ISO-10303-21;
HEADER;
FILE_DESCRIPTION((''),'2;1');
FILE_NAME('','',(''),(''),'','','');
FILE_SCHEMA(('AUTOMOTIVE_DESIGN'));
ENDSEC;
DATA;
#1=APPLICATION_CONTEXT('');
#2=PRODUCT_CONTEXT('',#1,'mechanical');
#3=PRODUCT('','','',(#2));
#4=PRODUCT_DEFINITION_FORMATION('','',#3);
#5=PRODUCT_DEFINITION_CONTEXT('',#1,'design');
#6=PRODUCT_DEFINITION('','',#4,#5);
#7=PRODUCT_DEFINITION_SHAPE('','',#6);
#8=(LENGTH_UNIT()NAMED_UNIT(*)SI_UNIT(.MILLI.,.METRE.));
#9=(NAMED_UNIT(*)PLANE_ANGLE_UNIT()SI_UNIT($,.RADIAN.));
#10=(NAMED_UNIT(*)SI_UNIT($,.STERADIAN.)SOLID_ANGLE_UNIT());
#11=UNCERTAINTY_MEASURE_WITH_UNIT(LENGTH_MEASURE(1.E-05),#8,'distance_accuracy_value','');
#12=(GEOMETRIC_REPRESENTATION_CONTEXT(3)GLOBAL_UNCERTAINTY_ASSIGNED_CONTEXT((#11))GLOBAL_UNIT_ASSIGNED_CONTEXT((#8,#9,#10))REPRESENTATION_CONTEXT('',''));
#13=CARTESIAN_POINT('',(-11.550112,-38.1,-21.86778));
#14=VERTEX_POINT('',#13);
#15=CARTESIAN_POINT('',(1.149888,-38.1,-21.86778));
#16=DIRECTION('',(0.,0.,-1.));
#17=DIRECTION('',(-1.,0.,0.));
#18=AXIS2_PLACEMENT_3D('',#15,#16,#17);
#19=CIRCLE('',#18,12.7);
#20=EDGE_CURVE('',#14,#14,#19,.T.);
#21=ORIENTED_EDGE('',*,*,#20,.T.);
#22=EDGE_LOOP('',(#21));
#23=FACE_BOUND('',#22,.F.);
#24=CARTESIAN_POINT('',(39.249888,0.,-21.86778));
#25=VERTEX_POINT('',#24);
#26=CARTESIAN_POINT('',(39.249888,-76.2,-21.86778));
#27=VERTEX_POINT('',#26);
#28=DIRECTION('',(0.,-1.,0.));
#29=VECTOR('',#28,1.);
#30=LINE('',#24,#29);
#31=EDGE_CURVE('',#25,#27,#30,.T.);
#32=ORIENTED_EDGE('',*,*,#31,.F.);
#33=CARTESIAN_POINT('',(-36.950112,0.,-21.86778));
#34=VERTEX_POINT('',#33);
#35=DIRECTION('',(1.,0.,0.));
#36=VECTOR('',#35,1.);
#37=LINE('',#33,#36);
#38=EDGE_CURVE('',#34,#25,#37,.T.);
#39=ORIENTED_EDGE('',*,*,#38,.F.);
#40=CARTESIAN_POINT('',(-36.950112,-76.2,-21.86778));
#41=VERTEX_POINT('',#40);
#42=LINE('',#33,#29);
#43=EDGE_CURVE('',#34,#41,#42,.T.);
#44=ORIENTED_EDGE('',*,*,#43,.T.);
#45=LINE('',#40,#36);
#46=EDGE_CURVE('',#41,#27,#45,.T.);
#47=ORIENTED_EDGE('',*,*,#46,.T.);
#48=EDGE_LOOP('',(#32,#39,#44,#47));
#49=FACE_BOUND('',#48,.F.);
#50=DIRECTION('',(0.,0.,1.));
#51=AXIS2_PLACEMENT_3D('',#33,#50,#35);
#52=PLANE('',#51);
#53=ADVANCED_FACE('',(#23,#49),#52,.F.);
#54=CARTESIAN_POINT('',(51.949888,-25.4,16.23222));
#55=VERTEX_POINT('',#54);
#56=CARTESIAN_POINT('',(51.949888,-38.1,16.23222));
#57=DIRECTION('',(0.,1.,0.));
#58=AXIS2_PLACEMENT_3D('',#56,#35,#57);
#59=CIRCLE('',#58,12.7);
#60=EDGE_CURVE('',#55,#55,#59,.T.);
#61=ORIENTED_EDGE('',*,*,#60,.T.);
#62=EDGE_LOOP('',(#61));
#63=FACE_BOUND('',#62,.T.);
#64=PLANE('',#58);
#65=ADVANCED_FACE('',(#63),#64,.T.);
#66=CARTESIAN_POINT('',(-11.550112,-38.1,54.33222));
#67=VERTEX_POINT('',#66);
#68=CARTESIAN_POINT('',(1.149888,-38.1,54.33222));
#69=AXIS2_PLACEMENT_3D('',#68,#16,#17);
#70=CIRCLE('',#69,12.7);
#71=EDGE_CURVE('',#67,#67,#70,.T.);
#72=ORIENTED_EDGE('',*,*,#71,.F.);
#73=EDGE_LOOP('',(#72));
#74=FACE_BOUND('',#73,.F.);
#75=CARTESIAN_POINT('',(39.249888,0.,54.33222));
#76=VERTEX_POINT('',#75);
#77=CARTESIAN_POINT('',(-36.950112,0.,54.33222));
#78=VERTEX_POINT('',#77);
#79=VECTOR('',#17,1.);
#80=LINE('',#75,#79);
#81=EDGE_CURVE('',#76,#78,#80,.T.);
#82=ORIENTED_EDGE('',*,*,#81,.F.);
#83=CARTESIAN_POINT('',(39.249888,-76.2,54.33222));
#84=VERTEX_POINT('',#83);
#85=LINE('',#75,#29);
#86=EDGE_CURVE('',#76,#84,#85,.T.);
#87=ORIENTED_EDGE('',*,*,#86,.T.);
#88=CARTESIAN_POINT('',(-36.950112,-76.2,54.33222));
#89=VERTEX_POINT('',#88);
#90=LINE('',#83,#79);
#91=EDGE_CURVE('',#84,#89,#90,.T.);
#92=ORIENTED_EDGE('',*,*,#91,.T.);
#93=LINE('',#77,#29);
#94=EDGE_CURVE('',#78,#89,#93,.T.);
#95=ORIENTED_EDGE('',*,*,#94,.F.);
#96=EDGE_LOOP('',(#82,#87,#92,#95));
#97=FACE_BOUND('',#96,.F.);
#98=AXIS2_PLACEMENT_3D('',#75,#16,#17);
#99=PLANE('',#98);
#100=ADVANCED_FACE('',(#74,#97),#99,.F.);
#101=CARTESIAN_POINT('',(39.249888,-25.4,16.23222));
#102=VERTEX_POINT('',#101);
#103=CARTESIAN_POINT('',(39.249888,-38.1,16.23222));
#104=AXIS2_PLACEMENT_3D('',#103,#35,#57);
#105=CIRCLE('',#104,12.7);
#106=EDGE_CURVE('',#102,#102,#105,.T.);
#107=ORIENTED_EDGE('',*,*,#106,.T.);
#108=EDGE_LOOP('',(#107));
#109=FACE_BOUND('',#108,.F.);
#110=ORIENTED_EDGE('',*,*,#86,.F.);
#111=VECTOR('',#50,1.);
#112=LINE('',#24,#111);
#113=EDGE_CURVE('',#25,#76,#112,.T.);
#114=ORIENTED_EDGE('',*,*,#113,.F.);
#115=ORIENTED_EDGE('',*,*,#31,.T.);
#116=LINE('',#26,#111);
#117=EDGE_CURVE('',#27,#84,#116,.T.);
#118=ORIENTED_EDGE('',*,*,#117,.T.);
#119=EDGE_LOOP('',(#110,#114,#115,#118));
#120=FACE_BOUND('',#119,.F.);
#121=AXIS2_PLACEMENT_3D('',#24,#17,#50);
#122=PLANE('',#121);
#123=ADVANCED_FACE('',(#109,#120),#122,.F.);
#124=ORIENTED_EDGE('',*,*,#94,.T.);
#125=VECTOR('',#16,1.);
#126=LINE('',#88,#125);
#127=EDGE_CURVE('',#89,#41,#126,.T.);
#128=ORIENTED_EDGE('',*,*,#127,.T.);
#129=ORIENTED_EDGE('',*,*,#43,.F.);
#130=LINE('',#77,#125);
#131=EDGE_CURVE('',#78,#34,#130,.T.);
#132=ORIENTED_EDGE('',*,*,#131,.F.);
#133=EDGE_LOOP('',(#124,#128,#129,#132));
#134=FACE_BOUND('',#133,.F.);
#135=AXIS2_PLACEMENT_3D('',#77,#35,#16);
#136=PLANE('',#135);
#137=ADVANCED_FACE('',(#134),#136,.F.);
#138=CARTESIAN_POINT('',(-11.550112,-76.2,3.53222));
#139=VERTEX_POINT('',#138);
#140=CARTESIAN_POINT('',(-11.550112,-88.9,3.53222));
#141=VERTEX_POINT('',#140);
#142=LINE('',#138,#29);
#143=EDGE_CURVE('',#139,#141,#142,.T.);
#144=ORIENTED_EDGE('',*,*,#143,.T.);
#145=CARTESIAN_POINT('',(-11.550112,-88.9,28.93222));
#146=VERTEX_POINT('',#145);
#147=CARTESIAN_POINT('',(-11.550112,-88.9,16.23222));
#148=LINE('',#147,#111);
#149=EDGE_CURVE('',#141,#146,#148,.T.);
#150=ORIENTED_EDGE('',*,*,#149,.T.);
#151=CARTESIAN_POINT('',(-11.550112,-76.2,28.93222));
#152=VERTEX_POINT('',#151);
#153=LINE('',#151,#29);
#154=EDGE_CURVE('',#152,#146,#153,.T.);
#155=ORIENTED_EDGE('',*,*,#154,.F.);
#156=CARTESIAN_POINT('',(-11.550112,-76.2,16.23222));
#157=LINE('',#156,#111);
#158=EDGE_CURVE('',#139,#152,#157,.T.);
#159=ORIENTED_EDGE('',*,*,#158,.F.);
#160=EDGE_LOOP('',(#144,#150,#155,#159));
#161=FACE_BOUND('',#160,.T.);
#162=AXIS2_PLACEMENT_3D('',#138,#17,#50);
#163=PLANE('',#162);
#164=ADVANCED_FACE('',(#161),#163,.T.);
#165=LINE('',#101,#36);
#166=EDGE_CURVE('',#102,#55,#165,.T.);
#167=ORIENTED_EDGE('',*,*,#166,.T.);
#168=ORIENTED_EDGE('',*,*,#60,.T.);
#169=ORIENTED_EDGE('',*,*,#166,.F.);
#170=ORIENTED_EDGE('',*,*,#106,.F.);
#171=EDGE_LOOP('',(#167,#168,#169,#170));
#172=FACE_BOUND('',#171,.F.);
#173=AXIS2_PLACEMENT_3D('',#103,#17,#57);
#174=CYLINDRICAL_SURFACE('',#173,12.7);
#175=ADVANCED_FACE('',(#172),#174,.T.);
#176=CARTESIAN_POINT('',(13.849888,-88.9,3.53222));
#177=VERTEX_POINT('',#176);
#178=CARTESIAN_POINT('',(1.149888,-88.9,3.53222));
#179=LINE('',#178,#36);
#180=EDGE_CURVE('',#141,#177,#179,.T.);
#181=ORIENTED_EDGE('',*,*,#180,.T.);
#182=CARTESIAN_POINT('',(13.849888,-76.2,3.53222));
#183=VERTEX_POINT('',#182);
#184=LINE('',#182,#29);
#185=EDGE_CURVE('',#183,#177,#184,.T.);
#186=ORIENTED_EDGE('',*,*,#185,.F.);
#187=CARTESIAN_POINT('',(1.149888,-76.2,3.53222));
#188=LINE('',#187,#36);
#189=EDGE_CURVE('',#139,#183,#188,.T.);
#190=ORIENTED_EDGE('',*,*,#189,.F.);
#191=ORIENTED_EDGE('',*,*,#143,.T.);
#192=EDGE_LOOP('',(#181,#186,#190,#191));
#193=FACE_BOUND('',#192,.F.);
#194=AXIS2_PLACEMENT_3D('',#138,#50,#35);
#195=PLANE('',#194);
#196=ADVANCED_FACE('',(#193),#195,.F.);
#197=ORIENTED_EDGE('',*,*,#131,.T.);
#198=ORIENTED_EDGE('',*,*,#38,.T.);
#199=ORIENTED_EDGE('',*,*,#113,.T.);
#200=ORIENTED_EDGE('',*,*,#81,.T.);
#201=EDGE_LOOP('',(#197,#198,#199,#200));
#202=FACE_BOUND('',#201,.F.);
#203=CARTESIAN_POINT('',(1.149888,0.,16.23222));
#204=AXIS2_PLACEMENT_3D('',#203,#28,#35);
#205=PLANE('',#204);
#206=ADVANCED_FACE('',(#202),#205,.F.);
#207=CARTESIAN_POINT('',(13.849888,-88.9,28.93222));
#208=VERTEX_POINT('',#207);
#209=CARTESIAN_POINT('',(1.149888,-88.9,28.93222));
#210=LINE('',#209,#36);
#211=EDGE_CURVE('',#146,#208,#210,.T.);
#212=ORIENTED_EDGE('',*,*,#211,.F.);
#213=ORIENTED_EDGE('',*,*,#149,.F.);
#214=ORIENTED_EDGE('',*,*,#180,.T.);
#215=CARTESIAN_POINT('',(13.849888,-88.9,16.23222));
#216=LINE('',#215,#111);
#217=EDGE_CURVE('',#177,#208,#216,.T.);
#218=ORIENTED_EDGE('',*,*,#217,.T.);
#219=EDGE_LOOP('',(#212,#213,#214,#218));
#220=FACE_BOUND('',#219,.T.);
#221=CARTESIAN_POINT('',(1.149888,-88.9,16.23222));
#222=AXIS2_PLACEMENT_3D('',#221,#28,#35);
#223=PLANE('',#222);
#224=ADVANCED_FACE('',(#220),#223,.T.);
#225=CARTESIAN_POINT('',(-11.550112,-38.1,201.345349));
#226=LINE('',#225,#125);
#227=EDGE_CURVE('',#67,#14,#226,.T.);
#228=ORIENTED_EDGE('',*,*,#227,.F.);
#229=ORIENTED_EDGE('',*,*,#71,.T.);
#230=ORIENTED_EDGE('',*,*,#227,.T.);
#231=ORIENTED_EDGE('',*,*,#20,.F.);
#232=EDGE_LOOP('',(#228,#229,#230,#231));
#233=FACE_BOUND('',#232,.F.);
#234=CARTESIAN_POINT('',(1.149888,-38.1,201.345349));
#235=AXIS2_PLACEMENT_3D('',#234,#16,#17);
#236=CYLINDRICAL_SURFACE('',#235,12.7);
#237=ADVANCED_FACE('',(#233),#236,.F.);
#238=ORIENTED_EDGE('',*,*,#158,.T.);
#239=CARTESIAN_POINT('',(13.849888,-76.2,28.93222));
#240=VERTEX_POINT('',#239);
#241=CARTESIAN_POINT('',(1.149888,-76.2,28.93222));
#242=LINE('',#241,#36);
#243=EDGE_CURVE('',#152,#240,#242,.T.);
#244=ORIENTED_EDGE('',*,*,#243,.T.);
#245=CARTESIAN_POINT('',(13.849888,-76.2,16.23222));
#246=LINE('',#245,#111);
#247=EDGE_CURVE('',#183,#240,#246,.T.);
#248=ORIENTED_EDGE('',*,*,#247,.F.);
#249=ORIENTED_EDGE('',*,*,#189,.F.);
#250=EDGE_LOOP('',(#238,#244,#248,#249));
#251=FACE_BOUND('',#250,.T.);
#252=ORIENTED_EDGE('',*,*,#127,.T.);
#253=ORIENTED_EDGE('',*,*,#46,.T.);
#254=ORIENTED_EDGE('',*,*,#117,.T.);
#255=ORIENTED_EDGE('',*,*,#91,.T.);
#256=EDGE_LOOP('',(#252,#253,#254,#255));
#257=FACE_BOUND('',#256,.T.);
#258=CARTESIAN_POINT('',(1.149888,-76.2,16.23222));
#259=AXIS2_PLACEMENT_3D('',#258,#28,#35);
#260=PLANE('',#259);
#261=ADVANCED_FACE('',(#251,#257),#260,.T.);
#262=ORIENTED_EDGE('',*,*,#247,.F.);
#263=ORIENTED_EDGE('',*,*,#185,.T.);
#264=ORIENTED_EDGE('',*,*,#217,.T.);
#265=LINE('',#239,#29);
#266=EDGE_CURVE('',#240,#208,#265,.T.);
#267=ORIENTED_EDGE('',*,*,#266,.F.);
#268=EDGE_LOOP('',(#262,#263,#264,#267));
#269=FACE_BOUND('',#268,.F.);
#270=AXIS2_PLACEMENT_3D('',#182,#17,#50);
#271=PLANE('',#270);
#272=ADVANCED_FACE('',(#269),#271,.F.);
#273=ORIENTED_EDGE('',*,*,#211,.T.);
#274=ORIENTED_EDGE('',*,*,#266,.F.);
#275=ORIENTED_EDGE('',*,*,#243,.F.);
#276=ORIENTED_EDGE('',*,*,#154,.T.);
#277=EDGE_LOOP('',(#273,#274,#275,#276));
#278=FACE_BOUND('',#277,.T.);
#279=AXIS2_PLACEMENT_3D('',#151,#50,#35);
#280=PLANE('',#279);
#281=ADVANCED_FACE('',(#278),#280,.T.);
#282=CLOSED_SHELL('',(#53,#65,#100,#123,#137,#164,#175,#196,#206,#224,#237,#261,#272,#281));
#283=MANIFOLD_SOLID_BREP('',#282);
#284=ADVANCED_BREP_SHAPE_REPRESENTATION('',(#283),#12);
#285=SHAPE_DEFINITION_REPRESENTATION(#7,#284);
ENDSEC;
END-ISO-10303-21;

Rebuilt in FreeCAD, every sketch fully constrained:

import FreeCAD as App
import Part
import Sketcher

V = App.Vector
Q = App.Units.Quantity

doc = App.newDocument("Part")
body = doc.addObject("PartDesign::Body", "Body")

# Sketch on XZ plane
sketch1 = doc.addObject("Sketcher::SketchObject", "Sketch")
body.addObject(sketch1)
sketch1.AttachmentSupport = (doc.XZ_Plane, [""])
sketch1.MapMode = "FlatFace"
sketch1.addGeometry(Part.LineSegment(V(39, 54, 0), V(-37, 54, 0)), False)
sketch1.addGeometry(Part.LineSegment(V(-37, 54, 0), V(-37, -22, 0)), False)
sketch1.addGeometry(Part.LineSegment(V(-37, -22, 0), V(39, -22, 0)), False)
sketch1.addGeometry(Part.LineSegment(V(39, -22, 0), V(39, 54, 0)), False)
sketch1.addConstraint(Sketcher.Constraint("Coincident", 0, 2, 1, 1))
sketch1.addConstraint(Sketcher.Constraint("Coincident", 1, 2, 2, 1))
sketch1.addConstraint(Sketcher.Constraint("Coincident", 2, 2, 3, 1))
sketch1.addConstraint(Sketcher.Constraint("Coincident", 3, 2, 0, 1))
sketch1.addConstraint(Sketcher.Constraint("Horizontal", 0))
sketch1.addConstraint(Sketcher.Constraint("Vertical", 1))
sketch1.addConstraint(Sketcher.Constraint("Horizontal", 2))
sketch1.addConstraint(Sketcher.Constraint("Vertical", 3))
sketch1.addConstraint(Sketcher.Constraint("Equal", 2, 1))
sketch1.addConstraint(Sketcher.Constraint("DistanceX", 0, 2, 0, 1, Q("3 in")))
sketch1.addConstraint(Sketcher.Constraint("DistanceX", 0, 2, -1, 1, 36.950112))
sketch1.addConstraint(Sketcher.Constraint("DistanceY", -1, 1, 0, 2, 54.33222))
pad1 = doc.addObject("PartDesign::Pad", "Pad")
body.addObject(pad1)
pad1.Profile = sketch1
pad1.Length = Q("3 in")

# Sketch on XZ plane
sketch2 = doc.addObject("Sketcher::SketchObject", "Sketch001")
body.addObject(sketch2)
sketch2.AttachmentSupport = (doc.XZ_Plane, [""])
sketch2.MapMode = "FlatFace"
sketch2.AttachmentOffset = App.Placement(V(0, 0, 3 * 25.4), App.Rotation())
sketch2.addGeometry(Part.LineSegment(V(-12, 29, 0), V(-12, 4, 0)), False)
sketch2.addGeometry(Part.LineSegment(V(-12, 4, 0), V(14, 4, 0)), False)
sketch2.addGeometry(Part.LineSegment(V(14, 4, 0), V(14, 29, 0)), False)
sketch2.addGeometry(Part.LineSegment(V(14, 29, 0), V(-12, 29, 0)), False)
sketch2.addConstraint(Sketcher.Constraint("Coincident", 0, 2, 1, 1))
sketch2.addConstraint(Sketcher.Constraint("Coincident", 1, 2, 2, 1))
sketch2.addConstraint(Sketcher.Constraint("Coincident", 2, 2, 3, 1))
sketch2.addConstraint(Sketcher.Constraint("Coincident", 3, 2, 0, 1))
sketch2.addConstraint(Sketcher.Constraint("Vertical", 0))
sketch2.addConstraint(Sketcher.Constraint("Horizontal", 1))
sketch2.addConstraint(Sketcher.Constraint("Vertical", 2))
sketch2.addConstraint(Sketcher.Constraint("Horizontal", 3))
sketch2.addConstraint(Sketcher.Constraint("Equal", 3, 0))
sketch2.addConstraint(Sketcher.Constraint("DistanceX", 1, 1, 1, 2, Q("1 in")))
sketch2.addConstraint(Sketcher.Constraint("DistanceY", -1, 1, 0, 2, 3.53222))
sketch2.addConstraint(Sketcher.Constraint("DistanceX", 0, 2, -1, 1, 11.550112))
pad2 = doc.addObject("PartDesign::Pad", "Pad001")
body.addObject(pad2)
pad2.Profile = sketch2
pad2.Length = Q("0.5 in")

# Sketch on YZ plane
sketch3 = doc.addObject("Sketcher::SketchObject", "Sketch002")
body.addObject(sketch3)
sketch3.AttachmentSupport = (doc.YZ_Plane, [""])
sketch3.MapMode = "FlatFace"
sketch3.AttachmentOffset = App.Placement(V(0, 0, 39.249888), App.Rotation())
sketch3.addGeometry(Part.Circle(V(-38, 16, 0), V(0, 0, 1), 13), False)
sketch3.addConstraint(Sketcher.Constraint("Diameter", 0, Q("1 in")))
sketch3.addConstraint(Sketcher.Constraint("DistanceX", 0, 3, -1, 1, Q("1.5 in")))
sketch3.addConstraint(Sketcher.Constraint("DistanceY", -1, 1, 0, 3, 16.23222))
pad3 = doc.addObject("PartDesign::Pad", "Pad002")
body.addObject(pad3)
pad3.Profile = sketch3
pad3.Length = Q("0.5 in")

# Sketch on XY plane
sketch4 = doc.addObject("Sketcher::SketchObject", "Sketch003")
body.addObject(sketch4)
sketch4.AttachmentSupport = (doc.XY_Plane, [""])
sketch4.MapMode = "FlatFace"
sketch4.AttachmentOffset = App.Placement(V(0, 0, 54.33222), App.Rotation())
sketch4.addGeometry(Part.Circle(V(1, -38, 0), V(0, 0, 1), 13), False)
sketch4.addConstraint(Sketcher.Constraint("Diameter", 0, Q("1 in")))
sketch4.addConstraint(Sketcher.Constraint("DistanceY", 0, 3, -1, 1, Q("1.5 in")))
sketch4.addConstraint(Sketcher.Constraint("DistanceX", -1, 1, 0, 3, 1.149888))
doc.recompute()
hole = doc.addObject("PartDesign::Hole", "Hole")
body.addObject(hole)
hole.Profile = sketch4
hole.ThreadType = "None"
hole.Diameter = Q("1 in")
hole.DepthType = "ThroughAll"

doc.recompute()
